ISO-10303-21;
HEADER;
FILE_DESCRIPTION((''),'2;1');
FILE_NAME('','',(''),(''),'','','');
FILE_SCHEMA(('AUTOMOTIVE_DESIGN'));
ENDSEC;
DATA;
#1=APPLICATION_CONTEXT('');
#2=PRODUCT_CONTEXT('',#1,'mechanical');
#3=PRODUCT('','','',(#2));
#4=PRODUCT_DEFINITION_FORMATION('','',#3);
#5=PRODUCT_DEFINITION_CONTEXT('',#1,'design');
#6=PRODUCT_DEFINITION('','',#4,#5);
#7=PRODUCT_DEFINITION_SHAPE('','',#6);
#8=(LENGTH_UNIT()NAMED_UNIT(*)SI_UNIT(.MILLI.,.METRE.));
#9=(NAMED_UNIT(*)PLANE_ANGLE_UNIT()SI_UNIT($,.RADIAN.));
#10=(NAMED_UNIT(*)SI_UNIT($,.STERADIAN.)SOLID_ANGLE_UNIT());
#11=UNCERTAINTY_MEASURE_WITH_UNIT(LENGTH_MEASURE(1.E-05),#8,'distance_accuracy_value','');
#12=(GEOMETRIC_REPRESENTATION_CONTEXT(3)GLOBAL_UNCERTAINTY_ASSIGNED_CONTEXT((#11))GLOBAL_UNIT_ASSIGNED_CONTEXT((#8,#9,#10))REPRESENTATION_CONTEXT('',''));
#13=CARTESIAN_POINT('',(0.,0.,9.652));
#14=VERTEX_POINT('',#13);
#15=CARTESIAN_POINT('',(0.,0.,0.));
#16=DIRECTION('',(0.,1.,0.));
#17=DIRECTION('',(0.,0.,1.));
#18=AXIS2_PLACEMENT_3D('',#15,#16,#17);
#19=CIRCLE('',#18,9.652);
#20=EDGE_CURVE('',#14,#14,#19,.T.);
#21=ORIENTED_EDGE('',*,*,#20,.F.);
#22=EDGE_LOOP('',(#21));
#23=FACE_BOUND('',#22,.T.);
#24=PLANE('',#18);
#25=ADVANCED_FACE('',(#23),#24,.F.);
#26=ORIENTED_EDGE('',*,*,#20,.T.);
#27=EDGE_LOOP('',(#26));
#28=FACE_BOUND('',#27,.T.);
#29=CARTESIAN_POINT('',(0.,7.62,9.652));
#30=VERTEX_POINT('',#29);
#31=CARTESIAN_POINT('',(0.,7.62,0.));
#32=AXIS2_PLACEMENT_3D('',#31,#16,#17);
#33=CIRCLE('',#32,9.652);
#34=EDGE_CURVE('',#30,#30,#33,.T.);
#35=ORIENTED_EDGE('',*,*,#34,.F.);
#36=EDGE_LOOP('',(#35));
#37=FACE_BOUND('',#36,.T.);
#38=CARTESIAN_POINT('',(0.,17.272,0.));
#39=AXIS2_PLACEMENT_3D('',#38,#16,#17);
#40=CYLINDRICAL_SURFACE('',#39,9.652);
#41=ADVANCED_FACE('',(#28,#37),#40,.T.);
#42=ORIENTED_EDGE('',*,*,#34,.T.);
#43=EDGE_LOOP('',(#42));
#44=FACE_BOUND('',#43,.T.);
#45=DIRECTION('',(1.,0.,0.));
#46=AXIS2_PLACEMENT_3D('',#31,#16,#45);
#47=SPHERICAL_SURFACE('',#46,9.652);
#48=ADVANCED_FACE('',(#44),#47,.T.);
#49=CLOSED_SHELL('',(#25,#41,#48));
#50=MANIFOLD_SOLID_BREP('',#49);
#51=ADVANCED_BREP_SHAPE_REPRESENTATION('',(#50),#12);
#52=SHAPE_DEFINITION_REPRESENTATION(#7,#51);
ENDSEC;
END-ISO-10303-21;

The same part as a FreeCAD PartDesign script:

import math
import FreeCAD as App
import Part
import Sketcher
Q = App.Units.Quantity

doc = App.newDocument("Part")
body = doc.addObject("PartDesign::Body", "Body")

# Sketch on XY plane
sketch1 = body.newObject("Sketcher::SketchObject", "Sketch")
sketch1.AttachmentSupport = (doc.getObject("XY_Plane"), [""])
sketch1.MapMode = "FlatFace"
sketch1.addGeometry([
    Part.LineSegment(App.Vector(0, 17, 0), App.Vector(0, 0, 0)),
    Part.LineSegment(App.Vector(0, 0, 0), App.Vector(10, 0, 0)),
    Part.LineSegment(App.Vector(10, 0, 0), App.Vector(10, 8, 0)),
    Part.ArcOfCircle(Part.Circle(App.Vector(0, 8, 0), App.Vector(0, 0, 1), 10), math.radians(0), math.radians(90)),
], False)
sketch1.addConstraint([
    Sketcher.Constraint("Coincident", 0, 2, 1, 1),
    Sketcher.Constraint("Coincident", 1, 2, 2, 1),
    Sketcher.Constraint("Tangent", 2, 2, 3, 1),
    Sketcher.Constraint("Coincident", 3, 2, 0, 1),
    Sketcher.Constraint("Vertical", 0),
    Sketcher.Constraint("Horizontal", 1),
    Sketcher.Constraint("Vertical", 2),
    Sketcher.Constraint("Coincident", 0, 2, -1, 1),
    Sketcher.Constraint("PointOnObject", 3, 3, -2),
    Sketcher.Constraint("Radius", 3, Q("0.38 in")),
    Sketcher.Constraint("DistanceY", 2, 1, 2, 2, Q("0.3 in")),
])
revolution = body.newObject("PartDesign::Revolution", "Revolution")
revolution.Profile = sketch1
revolution.ReferenceAxis = (sketch1, ["V_Axis"])
revolution.Angle = 360

doc.recompute()
